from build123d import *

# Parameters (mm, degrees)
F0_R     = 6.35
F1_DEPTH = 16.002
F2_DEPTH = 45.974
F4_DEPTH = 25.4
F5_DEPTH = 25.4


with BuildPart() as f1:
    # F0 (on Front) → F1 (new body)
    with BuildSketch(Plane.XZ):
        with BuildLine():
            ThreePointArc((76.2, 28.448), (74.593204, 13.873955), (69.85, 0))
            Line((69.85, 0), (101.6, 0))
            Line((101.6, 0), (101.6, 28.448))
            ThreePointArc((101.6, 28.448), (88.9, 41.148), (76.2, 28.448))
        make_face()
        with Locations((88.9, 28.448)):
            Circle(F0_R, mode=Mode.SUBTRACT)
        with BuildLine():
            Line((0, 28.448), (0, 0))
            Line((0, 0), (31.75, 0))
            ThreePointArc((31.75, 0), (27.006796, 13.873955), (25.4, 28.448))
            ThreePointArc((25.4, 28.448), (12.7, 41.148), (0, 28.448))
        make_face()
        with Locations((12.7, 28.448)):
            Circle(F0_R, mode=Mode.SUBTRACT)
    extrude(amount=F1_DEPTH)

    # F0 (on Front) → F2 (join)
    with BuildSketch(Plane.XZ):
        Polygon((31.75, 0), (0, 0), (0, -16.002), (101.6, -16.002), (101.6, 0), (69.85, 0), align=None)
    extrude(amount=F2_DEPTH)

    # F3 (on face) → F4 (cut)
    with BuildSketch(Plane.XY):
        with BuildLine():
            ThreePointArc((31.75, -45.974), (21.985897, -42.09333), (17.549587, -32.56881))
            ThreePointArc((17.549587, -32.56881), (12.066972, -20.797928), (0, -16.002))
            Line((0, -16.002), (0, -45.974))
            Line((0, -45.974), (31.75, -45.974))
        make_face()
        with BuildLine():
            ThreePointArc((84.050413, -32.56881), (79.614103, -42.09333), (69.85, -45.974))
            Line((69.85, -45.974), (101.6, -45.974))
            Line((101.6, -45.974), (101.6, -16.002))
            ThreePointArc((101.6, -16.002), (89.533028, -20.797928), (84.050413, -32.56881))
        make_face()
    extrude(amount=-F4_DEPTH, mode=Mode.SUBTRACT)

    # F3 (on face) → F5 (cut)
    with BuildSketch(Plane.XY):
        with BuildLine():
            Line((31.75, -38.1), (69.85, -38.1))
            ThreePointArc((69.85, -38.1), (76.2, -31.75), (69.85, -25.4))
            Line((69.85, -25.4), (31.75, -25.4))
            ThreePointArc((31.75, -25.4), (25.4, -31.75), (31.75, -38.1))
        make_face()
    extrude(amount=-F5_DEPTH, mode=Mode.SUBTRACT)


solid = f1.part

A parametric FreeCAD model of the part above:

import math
import FreeCAD as App
import Part
import Sketcher
from FreeCAD import Vector
Q = App.Units.Quantity


def add_polygon(sketch, points):
    """Adds a closed chain of lines whose ends are joined by coincident constraints."""
    first, n = sketch.GeometryCount, len(points)
    for a, b in zip(points, points[1:] + points[:1]):
        sketch.addGeometry(Part.LineSegment(App.Vector(*a, 0), App.Vector(*b, 0)), False)
    for i in range(n):
        sketch.addConstraint(Sketcher.Constraint("Coincident", first + i, 2, first + (i + 1) % n, 1))

doc = App.newDocument("Part")
body = doc.addObject("PartDesign::Body", "Body")
body.AllowCompound = True

# Sketch on XZ plane
sketch1 = body.newObject("Sketcher::SketchObject", "Sketch")
sketch1.AttachmentSupport = (doc.getObject("XZ_Plane"), [""])
sketch1.MapMode = "FlatFace"
sketch1.addGeometry([
    Part.ArcOfCircle(Part.Circle(Vector(9, 28, 0), Vector(0, 0, 1), 67), math.radians(-25), math.radians(0)),  # 0
    Part.LineSegment(Vector(70, 0, 0), Vector(102, 0, 0)),  # 1
    Part.LineSegment(Vector(102, 0, 0), Vector(102, 28, 0)),  # 2
    Part.ArcOfCircle(Part.Circle(Vector(89, 28, 0), Vector(0, 0, 1), 13), math.radians(0), math.radians(180)),  # 3
    Part.Circle(Vector(89, 28, 0), Vector(0, 0, 1), 6),  # 4
    Part.LineSegment(Vector(0, 28, 0), Vector(0, 0, 0)),  # 5
    Part.LineSegment(Vector(0, 0, 0), Vector(32, 0, 0)),  # 6
    Part.ArcOfCircle(Part.Circle(Vector(92, 28, 0), Vector(0, 0, 1), 67), math.radians(180), math.radians(205)),  # 7
    Part.ArcOfCircle(Part.Circle(Vector(13, 28, 0), Vector(0, 0, 1), 13), math.radians(0), math.radians(180)),  # 8
    Part.Circle(Vector(13, 28, 0), Vector(0, 0, 1), 6),  # 9
], False)
sketch1.addConstraint([
    Sketcher.Constraint("Coincident", 0, 1, 1, 1),
    Sketcher.Constraint("Coincident", 1, 2, 2, 1),
    Sketcher.Constraint("Tangent", 2, 2, 3, 1),
    Sketcher.Constraint("Tangent", 3, 2, 0, 2),
    Sketcher.Constraint("Coincident", 5, 2, 6, 1),
    Sketcher.Constraint("Coincident", 6, 2, 7, 2),
    Sketcher.Constraint("Tangent", 7, 1, 8, 1),
    Sketcher.Constraint("Tangent", 8, 2, 5, 1),
    Sketcher.Constraint("Horizontal", 1),
    Sketcher.Constraint("Vertical", 2),
    Sketcher.Constraint("Vertical", 5),
    Sketcher.Constraint("Horizontal", 6),
    Sketcher.Constraint("Coincident", 5, 2, -1, 1),
    Sketcher.Constraint("Coincident", 4, 3, 3, 3),
    Sketcher.Constraint("Coincident", 9, 3, 8, 3),
    Sketcher.Constraint("Equal", 0, 7),
    Sketcher.Constraint("Equal", 3, 8),
    Sketcher.Constraint("Equal", 4, 9),
    Sketcher.Constraint("PointOnObject", 0, 1, -1),
    Sketcher.Constraint("Horizontal", 0, 3, 7, 3),
    Sketcher.Constraint("Horizontal", 4, 3, 8, 3),
    Sketcher.Constraint("Horizontal", 2, 2, 3, 2),
    Sketcher.Constraint("Diameter", 4, Q("0.5 in")),
    Sketcher.Constraint("Radius", 3, Q("0.5 in")),
    Sketcher.Constraint("DistanceX", -1, 1, 1, 2, Q("4 in")),
    Sketcher.Constraint("DistanceX", 1, 1, 1, 2, Q("1.25 in")),
    Sketcher.Constraint("DistanceY", 2, 1, 2, 2, Q("1.12 in")),
])
pad1 = body.newObject("PartDesign::Pad", "Pad")
pad1.Profile = sketch1
pad1.Length = Q("0.63 in")

# Sketch on XZ plane
sketch2 = body.newObject("Sketcher::SketchObject", "Sketch001")
sketch2.AttachmentSupport = (doc.getObject("XZ_Plane"), [""])
sketch2.MapMode = "FlatFace"
add_polygon(sketch2, [(0, 0), (0, -16), (102, -16), (102, 0)])  # lines 0-3
sketch2.addConstraint([
    Sketcher.Constraint("Vertical", 0),
    Sketcher.Constraint("Horizontal", 1),
    Sketcher.Constraint("Vertical", 2),
    Sketcher.Constraint("Horizontal", 3),
    Sketcher.Constraint("Coincident", 3, 2, -1, 1),
    Sketcher.Constraint("DistanceX", 1, 1, 1, 2, Q("4 in")),
    Sketcher.Constraint("DistanceY", 0, 2, 0, 1, Q("0.63 in")),
])
pad2 = body.newObject("PartDesign::Pad", "Pad001")
pad2.Profile = sketch2
pad2.Length = Q("1.81 in")

# Sketch on XY plane
sketch3 = body.newObject("Sketcher::SketchObject", "Sketch002")
sketch3.AttachmentSupport = (doc.getObject("XY_Plane"), [""])
sketch3.MapMode = "FlatFace"
sketch3.addGeometry([
    Part.ArcOfCircle(Part.Circle(Vector(32, -32, 0), Vector(0, 0, 1), 14), math.radians(-177), math.radians(-90)),  # 0
    Part.ArcOfCircle(Part.Circle(Vector(0, -34, 0), Vector(0, 0, 1), 18), math.radians(3), math.radians(90)),  # 1
    Part.LineSegment(Vector(0, -16, 0), Vector(0, -46, 0)),  # 2
    Part.LineSegment(Vector(0, -46, 0), Vector(32, -46, 0)),  # 3
    Part.ArcOfCircle(Part.Circle(Vector(70, -32, 0), Vector(0, 0, 1), 14), math.radians(-90), math.radians(-3)),  # 4
    Part.LineSegment(Vector(70, -46, 0), Vector(102, -46, 0)),  # 5
    Part.LineSegment(Vector(102, -46, 0), Vector(102, -16, 0)),  # 6
    Part.ArcOfCircle(Part.Circle(Vector(102, -34, 0), Vector(0, 0, 1), 18), math.radians(90), math.radians(177)),  # 7
], False)
sketch3.addConstraint([
    Sketcher.Constraint("Tangent", 0, 1, 1, 1),
    Sketcher.Constraint("Coincident", 1, 2, 2, 1),
    Sketcher.Constraint("Coincident", 2, 2, 3, 1),
    Sketcher.Constraint("Tangent", 3, 2, 0, 2),
    Sketcher.Constraint("Tangent", 4, 1, 5, 1),
    Sketcher.Constraint("Coincident", 5, 2, 6, 1),
    Sketcher.Constraint("Coincident", 6, 2, 7, 1),
    Sketcher.Constraint("Tangent", 7, 2, 4, 2),
    Sketcher.Constraint("Vertical", 2),
    Sketcher.Constraint("Horizontal", 3),
    Sketcher.Constraint("Horizontal", 5),
    Sketcher.Constraint("Vertical", 6),
    Sketcher.Constraint("Equal", 0, 4),
    Sketcher.Constraint("Equal", 1, 7),
    Sketcher.Constraint("PointOnObject", 1, 3, -2),
    Sketcher.Constraint("PointOnObject", 1, 2, -2),
    Sketcher.Constraint("Horizontal", 0, 3, 4, 3),
    Sketcher.Constraint("Horizontal", 1, 3, 7, 3),
    Sketcher.Constraint("Vertical", 7, 3, 5, 2),
    Sketcher.Constraint("Radius", 0, Q("0.56 in")),
    Sketcher.Constraint("DistanceX", -1, 1, 7, 3, Q("3.9999999 in")),
    Sketcher.Constraint("DistanceX", 3, 1, 3, 2, Q("1.25 in")),
    Sketcher.Constraint("DistanceY", 2, 2, 2, 1, Q("1.18 in")),
    Sketcher.Constraint("DistanceY", 0, 3, -1, 1, Q("1.25 in")),
])
pocket1 = body.newObject("PartDesign::Pocket", "Pocket")
pocket1.Profile = sketch3
pocket1.Length = Q("1 in")

# Sketch on XY plane
sketch4 = body.newObject("Sketcher::SketchObject", "Sketch003")
sketch4.AttachmentSupport = (doc.getObject("XY_Plane"), [""])
sketch4.MapMode = "FlatFace"
sketch4.addGeometry([
    Part.LineSegment(Vector(32, -38, 0), Vector(70, -38, 0)),
    Part.ArcOfCircle(Part.Circle(Vector(70, -32, 0), Vector(0, 0, 1), 6), math.radians(-90), math.radians(90)),
    Part.LineSegment(Vector(70, -25, 0), Vector(32, -25, 0)),
    Part.ArcOfCircle(Part.Circle(Vector(32, -32, 0), Vector(0, 0, 1), 6), math.radians(90), math.radians(270)),
], False)
sketch4.addConstraint([
    Sketcher.Constraint("Tangent", 0, 2, 1, 1),
    Sketcher.Constraint("Tangent", 1, 2, 2, 1),
    Sketcher.Constraint("Tangent", 2, 2, 3, 1),
    Sketcher.Constraint("Tangent", 3, 2, 0, 1),
    Sketcher.Constraint("Horizontal", 0),
    Sketcher.Constraint("Horizontal", 2),
    Sketcher.Constraint("Radius", 1, Q("0.25 in")),
    Sketcher.Constraint("DistanceX", 0, 1, 0, 2, Q("1.5 in")),
    Sketcher.Constraint("DistanceY", 1, 2, -1, 1, Q("1 in")),
    Sketcher.Constraint("DistanceX", -1, 1, 1, 3, Q("2.75 in")),
])
pocket2 = body.newObject("PartDesign::Pocket", "Pocket001")
pocket2.Profile = sketch4
pocket2.Length = Q("1 in")

doc.recompute()
